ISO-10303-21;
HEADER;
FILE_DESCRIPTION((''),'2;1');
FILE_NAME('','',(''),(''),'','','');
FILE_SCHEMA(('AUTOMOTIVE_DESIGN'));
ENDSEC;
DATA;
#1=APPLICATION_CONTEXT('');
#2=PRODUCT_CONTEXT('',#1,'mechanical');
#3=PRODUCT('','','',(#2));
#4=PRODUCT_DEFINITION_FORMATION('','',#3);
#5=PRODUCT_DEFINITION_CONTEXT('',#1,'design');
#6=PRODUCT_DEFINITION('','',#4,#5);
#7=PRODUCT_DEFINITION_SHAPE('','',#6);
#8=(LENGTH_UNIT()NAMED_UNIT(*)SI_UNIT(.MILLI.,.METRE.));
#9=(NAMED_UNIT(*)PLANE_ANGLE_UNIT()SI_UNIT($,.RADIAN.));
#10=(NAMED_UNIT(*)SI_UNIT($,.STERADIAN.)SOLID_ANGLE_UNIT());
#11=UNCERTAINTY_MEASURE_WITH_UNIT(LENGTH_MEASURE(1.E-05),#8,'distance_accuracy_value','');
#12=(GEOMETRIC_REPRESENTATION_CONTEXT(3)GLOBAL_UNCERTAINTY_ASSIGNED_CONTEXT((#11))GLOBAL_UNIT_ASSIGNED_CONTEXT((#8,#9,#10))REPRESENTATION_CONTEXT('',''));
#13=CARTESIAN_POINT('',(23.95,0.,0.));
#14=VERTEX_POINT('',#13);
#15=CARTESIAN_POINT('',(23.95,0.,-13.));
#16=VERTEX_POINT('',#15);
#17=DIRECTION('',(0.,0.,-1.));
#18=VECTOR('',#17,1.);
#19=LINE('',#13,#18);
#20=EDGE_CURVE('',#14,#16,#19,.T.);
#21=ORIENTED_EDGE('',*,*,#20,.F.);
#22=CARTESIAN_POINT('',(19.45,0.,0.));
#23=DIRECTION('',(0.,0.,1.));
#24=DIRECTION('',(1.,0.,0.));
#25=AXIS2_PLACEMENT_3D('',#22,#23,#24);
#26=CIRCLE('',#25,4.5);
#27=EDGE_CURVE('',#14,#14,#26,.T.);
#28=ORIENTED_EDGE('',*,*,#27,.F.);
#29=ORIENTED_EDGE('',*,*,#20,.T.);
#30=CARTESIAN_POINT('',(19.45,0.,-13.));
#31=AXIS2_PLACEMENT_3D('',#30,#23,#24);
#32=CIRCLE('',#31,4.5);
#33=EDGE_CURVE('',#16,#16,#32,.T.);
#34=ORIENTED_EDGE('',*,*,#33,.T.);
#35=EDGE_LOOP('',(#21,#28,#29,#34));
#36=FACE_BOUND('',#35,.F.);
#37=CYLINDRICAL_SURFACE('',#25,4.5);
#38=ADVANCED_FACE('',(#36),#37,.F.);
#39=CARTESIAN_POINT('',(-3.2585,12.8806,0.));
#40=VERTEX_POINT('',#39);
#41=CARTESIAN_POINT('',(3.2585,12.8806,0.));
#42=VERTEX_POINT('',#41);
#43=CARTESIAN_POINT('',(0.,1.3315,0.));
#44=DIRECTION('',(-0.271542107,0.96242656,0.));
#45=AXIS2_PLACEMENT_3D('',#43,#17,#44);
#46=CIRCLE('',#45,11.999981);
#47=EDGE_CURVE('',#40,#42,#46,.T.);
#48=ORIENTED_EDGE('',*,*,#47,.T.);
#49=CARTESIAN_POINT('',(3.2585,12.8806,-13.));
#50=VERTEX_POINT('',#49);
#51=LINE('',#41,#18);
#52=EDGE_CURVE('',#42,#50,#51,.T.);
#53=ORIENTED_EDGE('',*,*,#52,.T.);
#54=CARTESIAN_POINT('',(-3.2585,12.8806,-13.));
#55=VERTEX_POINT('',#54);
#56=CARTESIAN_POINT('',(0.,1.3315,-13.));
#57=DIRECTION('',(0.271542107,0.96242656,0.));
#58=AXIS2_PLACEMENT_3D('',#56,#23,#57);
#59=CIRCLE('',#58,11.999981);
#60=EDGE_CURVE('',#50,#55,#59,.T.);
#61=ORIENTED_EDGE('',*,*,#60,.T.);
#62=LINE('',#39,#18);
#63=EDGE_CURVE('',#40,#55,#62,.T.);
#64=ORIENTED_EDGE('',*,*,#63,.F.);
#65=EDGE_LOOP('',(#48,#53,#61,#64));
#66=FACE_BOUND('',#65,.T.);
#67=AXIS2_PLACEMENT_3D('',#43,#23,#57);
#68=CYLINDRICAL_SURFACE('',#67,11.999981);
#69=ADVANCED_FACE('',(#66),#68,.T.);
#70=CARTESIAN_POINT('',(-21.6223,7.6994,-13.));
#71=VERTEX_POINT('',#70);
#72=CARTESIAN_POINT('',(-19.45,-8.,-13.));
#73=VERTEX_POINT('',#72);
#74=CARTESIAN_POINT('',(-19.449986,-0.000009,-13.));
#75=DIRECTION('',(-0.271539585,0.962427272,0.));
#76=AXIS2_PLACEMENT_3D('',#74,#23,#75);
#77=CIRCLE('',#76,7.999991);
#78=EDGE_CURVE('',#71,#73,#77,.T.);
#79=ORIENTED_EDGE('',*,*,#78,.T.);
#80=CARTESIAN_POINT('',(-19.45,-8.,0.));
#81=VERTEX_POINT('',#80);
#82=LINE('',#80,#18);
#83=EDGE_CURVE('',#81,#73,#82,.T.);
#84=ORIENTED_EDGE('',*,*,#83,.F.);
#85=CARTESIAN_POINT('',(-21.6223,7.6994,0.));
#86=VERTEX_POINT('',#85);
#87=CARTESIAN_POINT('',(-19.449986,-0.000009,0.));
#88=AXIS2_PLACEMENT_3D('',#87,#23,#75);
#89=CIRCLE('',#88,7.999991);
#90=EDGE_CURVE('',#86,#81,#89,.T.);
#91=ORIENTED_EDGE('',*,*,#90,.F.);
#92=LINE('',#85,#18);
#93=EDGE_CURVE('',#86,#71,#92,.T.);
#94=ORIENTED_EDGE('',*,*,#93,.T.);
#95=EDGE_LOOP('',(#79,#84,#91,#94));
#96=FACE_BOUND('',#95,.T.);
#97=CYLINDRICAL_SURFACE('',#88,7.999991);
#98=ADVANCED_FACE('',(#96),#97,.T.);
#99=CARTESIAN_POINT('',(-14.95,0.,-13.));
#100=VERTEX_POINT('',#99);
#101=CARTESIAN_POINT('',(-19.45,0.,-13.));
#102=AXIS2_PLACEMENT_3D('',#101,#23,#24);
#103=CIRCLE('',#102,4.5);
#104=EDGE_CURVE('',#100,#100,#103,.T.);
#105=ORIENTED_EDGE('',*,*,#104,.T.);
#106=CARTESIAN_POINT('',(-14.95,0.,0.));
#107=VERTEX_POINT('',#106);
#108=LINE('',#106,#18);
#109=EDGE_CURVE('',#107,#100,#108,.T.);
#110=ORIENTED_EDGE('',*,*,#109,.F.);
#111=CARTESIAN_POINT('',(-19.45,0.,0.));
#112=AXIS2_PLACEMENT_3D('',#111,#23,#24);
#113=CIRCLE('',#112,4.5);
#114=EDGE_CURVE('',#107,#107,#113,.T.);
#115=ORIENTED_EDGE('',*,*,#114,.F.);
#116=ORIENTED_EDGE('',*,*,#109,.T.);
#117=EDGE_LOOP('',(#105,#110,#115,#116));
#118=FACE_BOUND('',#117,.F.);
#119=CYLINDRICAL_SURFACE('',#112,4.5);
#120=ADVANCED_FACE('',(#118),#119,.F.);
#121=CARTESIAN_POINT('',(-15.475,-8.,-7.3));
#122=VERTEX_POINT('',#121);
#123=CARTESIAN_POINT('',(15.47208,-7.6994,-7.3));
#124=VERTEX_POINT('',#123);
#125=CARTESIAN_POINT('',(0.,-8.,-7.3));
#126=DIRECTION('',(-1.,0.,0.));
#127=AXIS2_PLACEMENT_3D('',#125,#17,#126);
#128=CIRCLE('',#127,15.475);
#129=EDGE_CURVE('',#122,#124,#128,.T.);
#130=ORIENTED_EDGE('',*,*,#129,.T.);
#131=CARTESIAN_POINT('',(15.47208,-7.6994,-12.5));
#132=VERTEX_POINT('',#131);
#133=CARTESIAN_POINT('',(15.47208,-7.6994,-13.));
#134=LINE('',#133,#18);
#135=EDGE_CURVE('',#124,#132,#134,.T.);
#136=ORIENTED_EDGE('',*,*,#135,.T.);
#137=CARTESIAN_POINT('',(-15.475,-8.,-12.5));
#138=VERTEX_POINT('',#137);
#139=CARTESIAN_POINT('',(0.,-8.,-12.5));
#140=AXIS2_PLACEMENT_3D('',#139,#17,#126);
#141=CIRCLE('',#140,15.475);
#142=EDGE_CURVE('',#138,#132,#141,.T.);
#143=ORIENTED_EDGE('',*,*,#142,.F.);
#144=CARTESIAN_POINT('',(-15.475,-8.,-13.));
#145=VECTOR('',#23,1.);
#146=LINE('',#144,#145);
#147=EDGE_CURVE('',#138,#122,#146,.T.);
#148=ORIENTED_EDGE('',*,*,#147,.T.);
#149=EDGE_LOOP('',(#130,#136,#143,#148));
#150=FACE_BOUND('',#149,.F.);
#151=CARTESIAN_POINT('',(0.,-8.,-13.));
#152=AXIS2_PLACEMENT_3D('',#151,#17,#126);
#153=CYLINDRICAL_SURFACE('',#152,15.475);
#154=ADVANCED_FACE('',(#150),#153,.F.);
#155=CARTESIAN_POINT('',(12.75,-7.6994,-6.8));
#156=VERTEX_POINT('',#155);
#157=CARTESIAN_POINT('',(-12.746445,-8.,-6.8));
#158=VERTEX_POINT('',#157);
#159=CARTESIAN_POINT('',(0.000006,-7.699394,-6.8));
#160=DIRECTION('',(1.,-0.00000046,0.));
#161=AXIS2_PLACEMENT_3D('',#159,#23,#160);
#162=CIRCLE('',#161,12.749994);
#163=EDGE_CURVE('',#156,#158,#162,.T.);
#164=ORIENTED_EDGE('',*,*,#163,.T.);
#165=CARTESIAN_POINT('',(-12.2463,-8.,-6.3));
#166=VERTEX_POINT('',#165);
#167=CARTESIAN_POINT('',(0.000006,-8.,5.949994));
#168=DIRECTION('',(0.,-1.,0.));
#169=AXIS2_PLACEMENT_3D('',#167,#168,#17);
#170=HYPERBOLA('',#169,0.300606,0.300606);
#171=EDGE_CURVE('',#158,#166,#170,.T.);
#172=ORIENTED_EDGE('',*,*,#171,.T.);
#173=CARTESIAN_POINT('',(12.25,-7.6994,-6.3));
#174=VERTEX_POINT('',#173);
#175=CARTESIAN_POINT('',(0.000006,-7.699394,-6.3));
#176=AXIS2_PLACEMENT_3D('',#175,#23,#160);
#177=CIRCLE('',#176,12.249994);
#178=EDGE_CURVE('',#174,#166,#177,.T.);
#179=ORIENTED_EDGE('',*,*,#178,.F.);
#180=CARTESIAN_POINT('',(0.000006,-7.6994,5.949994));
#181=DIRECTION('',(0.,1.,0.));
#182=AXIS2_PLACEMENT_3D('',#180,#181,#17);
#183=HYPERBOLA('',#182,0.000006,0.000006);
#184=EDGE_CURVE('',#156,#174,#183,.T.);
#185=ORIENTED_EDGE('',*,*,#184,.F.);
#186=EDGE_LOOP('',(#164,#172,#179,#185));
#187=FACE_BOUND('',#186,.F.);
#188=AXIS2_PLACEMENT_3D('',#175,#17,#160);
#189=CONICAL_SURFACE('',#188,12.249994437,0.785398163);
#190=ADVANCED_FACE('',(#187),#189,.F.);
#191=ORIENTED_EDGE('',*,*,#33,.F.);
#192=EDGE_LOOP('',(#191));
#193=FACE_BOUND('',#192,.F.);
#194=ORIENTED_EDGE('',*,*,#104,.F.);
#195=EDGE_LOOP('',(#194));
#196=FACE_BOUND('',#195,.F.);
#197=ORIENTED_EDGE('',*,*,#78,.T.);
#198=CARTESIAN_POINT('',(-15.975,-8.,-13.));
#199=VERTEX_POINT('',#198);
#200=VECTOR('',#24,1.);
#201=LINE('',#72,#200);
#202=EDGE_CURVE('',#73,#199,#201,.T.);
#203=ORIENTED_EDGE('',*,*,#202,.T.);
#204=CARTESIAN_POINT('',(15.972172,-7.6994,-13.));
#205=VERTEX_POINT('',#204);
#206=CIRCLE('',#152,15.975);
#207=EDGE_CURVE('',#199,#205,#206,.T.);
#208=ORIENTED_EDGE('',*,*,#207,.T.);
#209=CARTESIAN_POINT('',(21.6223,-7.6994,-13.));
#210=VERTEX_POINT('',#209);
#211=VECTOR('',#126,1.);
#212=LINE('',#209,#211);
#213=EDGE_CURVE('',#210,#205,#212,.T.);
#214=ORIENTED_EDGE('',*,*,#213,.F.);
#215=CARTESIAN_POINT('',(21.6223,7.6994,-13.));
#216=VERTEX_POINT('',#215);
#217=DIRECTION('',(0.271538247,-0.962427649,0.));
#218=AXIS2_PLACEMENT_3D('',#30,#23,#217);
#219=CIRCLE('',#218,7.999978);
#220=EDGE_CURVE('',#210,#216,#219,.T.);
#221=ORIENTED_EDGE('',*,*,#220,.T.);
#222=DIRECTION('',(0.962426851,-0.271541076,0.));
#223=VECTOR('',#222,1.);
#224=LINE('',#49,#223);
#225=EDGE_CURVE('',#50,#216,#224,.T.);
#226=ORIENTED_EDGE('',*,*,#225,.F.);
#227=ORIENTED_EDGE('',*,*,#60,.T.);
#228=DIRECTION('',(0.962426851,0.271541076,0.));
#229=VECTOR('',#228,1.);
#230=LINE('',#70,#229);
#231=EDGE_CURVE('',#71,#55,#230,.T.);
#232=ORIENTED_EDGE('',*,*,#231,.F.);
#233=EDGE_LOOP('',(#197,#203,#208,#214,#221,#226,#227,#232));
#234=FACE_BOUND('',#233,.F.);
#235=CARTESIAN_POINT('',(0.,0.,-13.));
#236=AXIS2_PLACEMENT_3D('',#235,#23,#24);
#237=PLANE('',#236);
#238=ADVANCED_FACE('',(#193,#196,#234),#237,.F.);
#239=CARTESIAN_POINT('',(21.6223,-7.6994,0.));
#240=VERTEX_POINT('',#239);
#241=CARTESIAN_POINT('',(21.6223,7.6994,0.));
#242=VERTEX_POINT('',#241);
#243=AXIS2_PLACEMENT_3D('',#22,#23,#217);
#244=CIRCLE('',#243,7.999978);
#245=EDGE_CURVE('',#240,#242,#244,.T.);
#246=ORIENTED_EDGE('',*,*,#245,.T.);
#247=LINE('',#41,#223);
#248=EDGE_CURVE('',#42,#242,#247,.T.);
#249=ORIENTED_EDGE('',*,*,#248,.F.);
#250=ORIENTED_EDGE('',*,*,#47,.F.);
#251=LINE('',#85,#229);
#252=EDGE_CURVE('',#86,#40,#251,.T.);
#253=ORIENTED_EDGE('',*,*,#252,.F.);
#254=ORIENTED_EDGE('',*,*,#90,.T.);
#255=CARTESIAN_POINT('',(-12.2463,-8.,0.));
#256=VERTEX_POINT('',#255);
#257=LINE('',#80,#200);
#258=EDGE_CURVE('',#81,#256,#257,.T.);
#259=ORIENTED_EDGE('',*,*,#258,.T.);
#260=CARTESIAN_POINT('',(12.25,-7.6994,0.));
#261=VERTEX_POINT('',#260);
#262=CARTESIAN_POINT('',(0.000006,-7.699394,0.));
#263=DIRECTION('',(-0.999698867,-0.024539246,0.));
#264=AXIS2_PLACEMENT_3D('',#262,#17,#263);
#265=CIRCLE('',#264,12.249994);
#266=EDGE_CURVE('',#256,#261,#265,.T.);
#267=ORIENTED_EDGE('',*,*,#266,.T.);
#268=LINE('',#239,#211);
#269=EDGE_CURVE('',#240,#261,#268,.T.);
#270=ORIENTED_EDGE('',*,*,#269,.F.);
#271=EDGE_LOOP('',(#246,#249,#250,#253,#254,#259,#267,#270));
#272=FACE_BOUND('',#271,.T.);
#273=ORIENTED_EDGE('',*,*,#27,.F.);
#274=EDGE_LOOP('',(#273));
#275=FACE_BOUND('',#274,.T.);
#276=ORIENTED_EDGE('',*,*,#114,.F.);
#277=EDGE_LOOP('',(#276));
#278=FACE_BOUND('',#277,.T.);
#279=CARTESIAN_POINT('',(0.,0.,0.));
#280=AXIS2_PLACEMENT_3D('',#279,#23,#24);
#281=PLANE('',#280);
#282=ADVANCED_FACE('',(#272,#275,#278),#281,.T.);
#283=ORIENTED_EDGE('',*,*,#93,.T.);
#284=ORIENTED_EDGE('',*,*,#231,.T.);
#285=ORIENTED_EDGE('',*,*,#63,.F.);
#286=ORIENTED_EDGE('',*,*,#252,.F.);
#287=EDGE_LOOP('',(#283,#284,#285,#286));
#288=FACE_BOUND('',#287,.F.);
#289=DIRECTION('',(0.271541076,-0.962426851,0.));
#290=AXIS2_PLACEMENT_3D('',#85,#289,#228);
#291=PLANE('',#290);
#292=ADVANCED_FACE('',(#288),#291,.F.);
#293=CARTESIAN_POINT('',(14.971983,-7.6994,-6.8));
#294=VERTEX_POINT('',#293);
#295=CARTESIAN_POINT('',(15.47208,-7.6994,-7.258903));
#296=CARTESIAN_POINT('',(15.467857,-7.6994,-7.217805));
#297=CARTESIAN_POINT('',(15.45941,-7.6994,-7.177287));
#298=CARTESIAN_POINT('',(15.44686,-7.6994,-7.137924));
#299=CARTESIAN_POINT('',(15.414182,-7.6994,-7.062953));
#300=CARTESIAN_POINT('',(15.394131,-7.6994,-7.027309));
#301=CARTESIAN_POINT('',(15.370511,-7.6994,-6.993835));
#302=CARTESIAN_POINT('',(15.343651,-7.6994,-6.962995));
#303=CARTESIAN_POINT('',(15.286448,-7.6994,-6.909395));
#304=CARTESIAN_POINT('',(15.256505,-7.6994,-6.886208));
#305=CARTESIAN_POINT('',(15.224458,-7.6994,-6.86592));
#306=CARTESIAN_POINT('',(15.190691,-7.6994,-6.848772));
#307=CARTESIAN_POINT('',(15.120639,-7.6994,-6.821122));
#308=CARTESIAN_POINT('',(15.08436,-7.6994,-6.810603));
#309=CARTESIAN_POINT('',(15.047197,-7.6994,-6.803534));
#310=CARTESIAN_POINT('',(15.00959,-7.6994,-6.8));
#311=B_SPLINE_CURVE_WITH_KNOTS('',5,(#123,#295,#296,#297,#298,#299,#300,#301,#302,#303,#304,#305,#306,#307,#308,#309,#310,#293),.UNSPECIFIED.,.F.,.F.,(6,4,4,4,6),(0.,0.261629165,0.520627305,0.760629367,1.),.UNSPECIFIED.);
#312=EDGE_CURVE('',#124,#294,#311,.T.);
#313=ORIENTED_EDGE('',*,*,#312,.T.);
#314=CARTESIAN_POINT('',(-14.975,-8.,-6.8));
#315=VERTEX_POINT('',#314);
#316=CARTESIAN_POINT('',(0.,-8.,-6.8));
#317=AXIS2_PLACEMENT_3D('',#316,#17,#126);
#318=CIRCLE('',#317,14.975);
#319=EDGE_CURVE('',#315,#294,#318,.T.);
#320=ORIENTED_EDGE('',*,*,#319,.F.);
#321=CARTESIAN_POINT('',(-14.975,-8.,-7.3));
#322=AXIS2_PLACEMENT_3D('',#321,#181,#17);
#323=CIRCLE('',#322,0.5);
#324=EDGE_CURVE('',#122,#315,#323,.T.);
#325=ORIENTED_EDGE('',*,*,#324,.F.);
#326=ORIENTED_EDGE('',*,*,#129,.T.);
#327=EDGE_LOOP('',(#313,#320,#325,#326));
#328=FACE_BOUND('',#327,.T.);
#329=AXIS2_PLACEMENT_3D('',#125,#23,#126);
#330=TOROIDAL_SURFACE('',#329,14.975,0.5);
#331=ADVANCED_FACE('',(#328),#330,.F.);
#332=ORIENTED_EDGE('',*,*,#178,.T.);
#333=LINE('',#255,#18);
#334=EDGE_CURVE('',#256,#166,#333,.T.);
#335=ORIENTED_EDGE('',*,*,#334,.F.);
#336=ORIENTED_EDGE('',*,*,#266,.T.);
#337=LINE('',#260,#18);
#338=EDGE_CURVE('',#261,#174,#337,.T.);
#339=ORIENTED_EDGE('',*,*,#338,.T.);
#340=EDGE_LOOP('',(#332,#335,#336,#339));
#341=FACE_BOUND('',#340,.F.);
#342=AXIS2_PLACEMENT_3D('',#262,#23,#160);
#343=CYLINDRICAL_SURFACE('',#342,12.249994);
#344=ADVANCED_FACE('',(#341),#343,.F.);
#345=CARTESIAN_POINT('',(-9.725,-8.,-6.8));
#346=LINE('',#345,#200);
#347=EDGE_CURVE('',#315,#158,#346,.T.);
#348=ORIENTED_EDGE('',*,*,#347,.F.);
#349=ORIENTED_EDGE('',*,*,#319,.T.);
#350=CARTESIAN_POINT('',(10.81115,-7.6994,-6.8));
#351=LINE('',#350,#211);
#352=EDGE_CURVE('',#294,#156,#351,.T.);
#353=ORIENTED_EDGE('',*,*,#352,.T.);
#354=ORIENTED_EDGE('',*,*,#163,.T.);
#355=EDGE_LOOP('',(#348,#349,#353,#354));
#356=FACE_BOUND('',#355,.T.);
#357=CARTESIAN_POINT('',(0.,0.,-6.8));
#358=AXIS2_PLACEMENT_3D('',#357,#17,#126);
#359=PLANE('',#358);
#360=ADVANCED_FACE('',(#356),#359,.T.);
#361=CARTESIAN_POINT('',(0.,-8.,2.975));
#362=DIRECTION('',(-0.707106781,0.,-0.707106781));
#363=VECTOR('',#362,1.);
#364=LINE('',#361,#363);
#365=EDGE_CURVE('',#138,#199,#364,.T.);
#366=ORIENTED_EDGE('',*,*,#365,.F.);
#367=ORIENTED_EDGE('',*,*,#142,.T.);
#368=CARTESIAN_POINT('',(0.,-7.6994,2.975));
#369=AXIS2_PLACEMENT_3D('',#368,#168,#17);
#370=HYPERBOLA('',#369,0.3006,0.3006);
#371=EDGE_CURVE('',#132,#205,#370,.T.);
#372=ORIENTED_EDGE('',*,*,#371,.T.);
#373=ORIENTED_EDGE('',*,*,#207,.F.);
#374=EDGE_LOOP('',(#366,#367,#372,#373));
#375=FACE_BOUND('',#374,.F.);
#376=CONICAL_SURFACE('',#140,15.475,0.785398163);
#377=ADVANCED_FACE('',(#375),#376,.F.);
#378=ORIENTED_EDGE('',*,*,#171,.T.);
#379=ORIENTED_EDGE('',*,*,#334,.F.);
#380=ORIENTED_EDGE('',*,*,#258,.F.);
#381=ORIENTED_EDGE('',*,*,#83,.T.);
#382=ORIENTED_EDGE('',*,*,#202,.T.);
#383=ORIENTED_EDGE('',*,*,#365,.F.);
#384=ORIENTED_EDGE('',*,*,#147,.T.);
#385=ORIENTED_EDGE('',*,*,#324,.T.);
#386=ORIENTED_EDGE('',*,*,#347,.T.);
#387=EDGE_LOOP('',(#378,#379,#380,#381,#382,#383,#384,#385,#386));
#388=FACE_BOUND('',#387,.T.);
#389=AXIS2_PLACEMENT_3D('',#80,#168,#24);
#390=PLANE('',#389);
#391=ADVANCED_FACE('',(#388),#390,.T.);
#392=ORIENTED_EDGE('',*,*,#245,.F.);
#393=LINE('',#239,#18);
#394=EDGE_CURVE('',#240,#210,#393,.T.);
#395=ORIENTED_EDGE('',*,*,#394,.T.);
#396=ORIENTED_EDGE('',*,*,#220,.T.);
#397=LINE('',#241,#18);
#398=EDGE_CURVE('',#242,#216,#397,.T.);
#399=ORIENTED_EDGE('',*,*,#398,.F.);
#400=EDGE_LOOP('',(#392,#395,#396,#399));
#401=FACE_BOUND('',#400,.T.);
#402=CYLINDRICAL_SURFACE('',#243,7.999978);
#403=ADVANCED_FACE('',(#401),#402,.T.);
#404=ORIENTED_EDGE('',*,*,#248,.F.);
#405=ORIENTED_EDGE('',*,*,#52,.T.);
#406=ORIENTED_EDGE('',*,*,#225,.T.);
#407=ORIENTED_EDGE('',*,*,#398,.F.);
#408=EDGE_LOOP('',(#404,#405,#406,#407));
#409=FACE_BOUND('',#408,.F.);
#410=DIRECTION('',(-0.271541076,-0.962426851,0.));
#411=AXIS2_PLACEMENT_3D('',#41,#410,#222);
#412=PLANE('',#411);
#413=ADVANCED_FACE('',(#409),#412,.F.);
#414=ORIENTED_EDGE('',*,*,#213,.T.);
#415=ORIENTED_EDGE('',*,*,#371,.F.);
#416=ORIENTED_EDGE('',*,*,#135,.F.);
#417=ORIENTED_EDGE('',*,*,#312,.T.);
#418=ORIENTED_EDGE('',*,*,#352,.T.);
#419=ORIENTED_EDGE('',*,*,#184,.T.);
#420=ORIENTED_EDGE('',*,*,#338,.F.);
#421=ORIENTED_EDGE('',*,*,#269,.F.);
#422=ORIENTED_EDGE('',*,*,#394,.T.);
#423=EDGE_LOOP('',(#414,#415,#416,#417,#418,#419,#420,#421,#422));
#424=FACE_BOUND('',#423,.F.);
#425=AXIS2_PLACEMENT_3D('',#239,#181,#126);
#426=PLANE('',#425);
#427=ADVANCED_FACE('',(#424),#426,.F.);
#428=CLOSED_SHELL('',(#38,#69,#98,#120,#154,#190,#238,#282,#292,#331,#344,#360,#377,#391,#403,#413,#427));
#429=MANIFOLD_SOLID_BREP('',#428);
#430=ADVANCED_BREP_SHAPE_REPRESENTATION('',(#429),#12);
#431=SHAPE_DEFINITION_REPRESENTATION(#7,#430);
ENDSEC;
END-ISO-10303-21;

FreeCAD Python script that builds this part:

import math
import FreeCAD as App
import Part
import Sketcher
from FreeCAD import Vector
Q = App.Units.Quantity


def edges_at(feature, points):
    """Names of the edges that pass closest to the given points."""
    edges = feature.Shape.Edges
    near = lambda p: min(range(len(edges)), key=lambda i: edges[i].distToShape(Part.Vertex(*p))[0])
    return sorted({f"Edge{near(p) + 1}" for p in points})

doc = App.newDocument("Part")
body = doc.addObject("PartDesign::Body", "Body")

# Sketch on XY plane
sketch1 = doc.addObject("Sketcher::SketchObject", "Sketch")
body.addObject(sketch1)
sketch1.AttachmentSupport = (doc.XY_Plane, [""])
sketch1.MapMode = "FlatFace"
sketch1.addGeometry([
    Part.ArcOfCircle(Part.Circle(Vector(0, 1.3, 0), Vector(0, 0, 1), 12), math.radians(74), math.radians(106)),  # 0
    Part.LineSegment(Vector(-3.3, 12.9, 0), Vector(-21.6, 7.7, 0)),  # 1
    Part.ArcOfCircle(Part.Circle(Vector(-19.4, 0, 0), Vector(0, 0, 1), 8), math.radians(106), math.radians(270)),  # 2
    Part.LineSegment(Vector(-19.4, -8, 0), Vector(-12.2, -8, 0)),  # 3
    Part.ArcOfCircle(Part.Circle(Vector(0, -7.7, 0), Vector(0, 0, 1), 12.2), math.radians(0), math.radians(181)),  # 4
    Part.LineSegment(Vector(12.2, -7.7, 0), Vector(21.6, -7.7, 0)),  # 5
    Part.ArcOfCircle(Part.Circle(Vector(19.4, 0, 0), Vector(0, 0, 1), 8), math.radians(-74), math.radians(74)),  # 6
    Part.LineSegment(Vector(21.6, 7.7, 0), Vector(3.3, 12.9, 0)),  # 7
    Part.Circle(Vector(19.4, 0, 0), Vector(0, 0, 1), 4.5),  # 8
    Part.Circle(Vector(-19.4, 0, 0), Vector(0, 0, 1), 4.5),  # 9
], False)
sketch1.addConstraint([
    Sketcher.Constraint("Tangent", 0, 2, 1, 1),
    Sketcher.Constraint("Tangent", 1, 2, 2, 1),
    Sketcher.Constraint("Tangent", 2, 2, 3, 1),
    Sketcher.Constraint("Coincident", 3, 2, 4, 2),
    Sketcher.Constraint("Coincident", 4, 1, 5, 1),
    Sketcher.Constraint("Coincident", 5, 2, 6, 1),
    Sketcher.Constraint("Tangent", 6, 2, 7, 1),
    Sketcher.Constraint("Tangent", 7, 2, 0, 1),
    Sketcher.Constraint("Horizontal", 3),
    Sketcher.Constraint("Horizontal", 5),
    Sketcher.Constraint("Coincident", 8, 3, 6, 3),
    Sketcher.Constraint("Coincident", 9, 3, 2, 3),
    Sketcher.Constraint("Equal", 2, 6),
    Sketcher.Constraint("Equal", 8, 9),
    Sketcher.Constraint("Symmetric", 2, 3, 6, 3, -1, 1),
    Sketcher.Constraint("Symmetric", 1, 2, 6, 2, -2),
    Sketcher.Constraint("PointOnObject", 4, 3, -2),
    Sketcher.Constraint("Vertical", 5, 2, 6, 2),
    Sketcher.Constraint("Diameter", 8, Q("9 mm")),
    Sketcher.Constraint("Radius", 0, Q("12 mm")),
    Sketcher.Constraint("Radius", 2, Q("8 mm")),
    Sketcher.Constraint("Radius", 4, Q("12.25 mm")),
    Sketcher.Constraint("DistanceX", 2, 3, 6, 3, Q("38.9 mm")),
    Sketcher.Constraint("DistanceY", 4, 3, 0, 2, Q("20.58 mm")),
    Sketcher.Constraint("DistanceX", 3, 1, 3, 2, Q("7.2037 mm")),
])
pad1 = doc.addObject("PartDesign::Pad", "Pad")
body.addObject(pad1)
pad1.Profile = sketch1
pad1.Length = 13
pad1.Reversed = True

# Sketch on XY plane
sketch2 = doc.addObject("Sketcher::SketchObject", "Sketch001")
body.addObject(sketch2)
sketch2.AttachmentSupport = (doc.XY_Plane, [""])
sketch2.MapMode = "FlatFace"
sketch2.AttachmentOffset = App.Placement(Vector(0, 0, -13), App.Rotation())
sketch2.addGeometry(Part.Circle(Vector(0, -8, 0), Vector(0, 0, 1), 15), False)
sketch2.addConstraint([
    Sketcher.Constraint("PointOnObject", 0, 3, -2),
    Sketcher.Constraint("Diameter", 0, Q("30.95 mm")),
    Sketcher.Constraint("DistanceY", 0, 3, -1, 1, Q("8 mm")),
])
pocket1 = doc.addObject("PartDesign::Pocket", "Pocket")
body.addObject(pocket1)
pocket1.Profile = sketch2
pocket1.Length = 6.2
pocket1.Reversed = True
doc.recompute()

fillet = doc.addObject("PartDesign::Fillet", "Fillet")
body.addObject(fillet)
fillet.Base = (pocket1, edges_at(pocket1, [(-0.15, 7.474, -6.8)]))
fillet.Radius = 0.5
doc.recompute()

chamfer = doc.addObject("PartDesign::Chamfer", "Chamfer")
body.addObject(chamfer)
chamfer.Base = (fillet, edges_at(fillet, [(-0.15, 7.474, -13)]))
chamfer.Size = 0.5
doc.recompute()

chamfer2 = doc.addObject("PartDesign::Chamfer", "Chamfer001")
body.addObject(chamfer2)
chamfer2.Base = (chamfer, edges_at(chamfer, [(-0.15, 4.55, -6.8)]))
chamfer2.Size = 0.5

doc.recompute()
